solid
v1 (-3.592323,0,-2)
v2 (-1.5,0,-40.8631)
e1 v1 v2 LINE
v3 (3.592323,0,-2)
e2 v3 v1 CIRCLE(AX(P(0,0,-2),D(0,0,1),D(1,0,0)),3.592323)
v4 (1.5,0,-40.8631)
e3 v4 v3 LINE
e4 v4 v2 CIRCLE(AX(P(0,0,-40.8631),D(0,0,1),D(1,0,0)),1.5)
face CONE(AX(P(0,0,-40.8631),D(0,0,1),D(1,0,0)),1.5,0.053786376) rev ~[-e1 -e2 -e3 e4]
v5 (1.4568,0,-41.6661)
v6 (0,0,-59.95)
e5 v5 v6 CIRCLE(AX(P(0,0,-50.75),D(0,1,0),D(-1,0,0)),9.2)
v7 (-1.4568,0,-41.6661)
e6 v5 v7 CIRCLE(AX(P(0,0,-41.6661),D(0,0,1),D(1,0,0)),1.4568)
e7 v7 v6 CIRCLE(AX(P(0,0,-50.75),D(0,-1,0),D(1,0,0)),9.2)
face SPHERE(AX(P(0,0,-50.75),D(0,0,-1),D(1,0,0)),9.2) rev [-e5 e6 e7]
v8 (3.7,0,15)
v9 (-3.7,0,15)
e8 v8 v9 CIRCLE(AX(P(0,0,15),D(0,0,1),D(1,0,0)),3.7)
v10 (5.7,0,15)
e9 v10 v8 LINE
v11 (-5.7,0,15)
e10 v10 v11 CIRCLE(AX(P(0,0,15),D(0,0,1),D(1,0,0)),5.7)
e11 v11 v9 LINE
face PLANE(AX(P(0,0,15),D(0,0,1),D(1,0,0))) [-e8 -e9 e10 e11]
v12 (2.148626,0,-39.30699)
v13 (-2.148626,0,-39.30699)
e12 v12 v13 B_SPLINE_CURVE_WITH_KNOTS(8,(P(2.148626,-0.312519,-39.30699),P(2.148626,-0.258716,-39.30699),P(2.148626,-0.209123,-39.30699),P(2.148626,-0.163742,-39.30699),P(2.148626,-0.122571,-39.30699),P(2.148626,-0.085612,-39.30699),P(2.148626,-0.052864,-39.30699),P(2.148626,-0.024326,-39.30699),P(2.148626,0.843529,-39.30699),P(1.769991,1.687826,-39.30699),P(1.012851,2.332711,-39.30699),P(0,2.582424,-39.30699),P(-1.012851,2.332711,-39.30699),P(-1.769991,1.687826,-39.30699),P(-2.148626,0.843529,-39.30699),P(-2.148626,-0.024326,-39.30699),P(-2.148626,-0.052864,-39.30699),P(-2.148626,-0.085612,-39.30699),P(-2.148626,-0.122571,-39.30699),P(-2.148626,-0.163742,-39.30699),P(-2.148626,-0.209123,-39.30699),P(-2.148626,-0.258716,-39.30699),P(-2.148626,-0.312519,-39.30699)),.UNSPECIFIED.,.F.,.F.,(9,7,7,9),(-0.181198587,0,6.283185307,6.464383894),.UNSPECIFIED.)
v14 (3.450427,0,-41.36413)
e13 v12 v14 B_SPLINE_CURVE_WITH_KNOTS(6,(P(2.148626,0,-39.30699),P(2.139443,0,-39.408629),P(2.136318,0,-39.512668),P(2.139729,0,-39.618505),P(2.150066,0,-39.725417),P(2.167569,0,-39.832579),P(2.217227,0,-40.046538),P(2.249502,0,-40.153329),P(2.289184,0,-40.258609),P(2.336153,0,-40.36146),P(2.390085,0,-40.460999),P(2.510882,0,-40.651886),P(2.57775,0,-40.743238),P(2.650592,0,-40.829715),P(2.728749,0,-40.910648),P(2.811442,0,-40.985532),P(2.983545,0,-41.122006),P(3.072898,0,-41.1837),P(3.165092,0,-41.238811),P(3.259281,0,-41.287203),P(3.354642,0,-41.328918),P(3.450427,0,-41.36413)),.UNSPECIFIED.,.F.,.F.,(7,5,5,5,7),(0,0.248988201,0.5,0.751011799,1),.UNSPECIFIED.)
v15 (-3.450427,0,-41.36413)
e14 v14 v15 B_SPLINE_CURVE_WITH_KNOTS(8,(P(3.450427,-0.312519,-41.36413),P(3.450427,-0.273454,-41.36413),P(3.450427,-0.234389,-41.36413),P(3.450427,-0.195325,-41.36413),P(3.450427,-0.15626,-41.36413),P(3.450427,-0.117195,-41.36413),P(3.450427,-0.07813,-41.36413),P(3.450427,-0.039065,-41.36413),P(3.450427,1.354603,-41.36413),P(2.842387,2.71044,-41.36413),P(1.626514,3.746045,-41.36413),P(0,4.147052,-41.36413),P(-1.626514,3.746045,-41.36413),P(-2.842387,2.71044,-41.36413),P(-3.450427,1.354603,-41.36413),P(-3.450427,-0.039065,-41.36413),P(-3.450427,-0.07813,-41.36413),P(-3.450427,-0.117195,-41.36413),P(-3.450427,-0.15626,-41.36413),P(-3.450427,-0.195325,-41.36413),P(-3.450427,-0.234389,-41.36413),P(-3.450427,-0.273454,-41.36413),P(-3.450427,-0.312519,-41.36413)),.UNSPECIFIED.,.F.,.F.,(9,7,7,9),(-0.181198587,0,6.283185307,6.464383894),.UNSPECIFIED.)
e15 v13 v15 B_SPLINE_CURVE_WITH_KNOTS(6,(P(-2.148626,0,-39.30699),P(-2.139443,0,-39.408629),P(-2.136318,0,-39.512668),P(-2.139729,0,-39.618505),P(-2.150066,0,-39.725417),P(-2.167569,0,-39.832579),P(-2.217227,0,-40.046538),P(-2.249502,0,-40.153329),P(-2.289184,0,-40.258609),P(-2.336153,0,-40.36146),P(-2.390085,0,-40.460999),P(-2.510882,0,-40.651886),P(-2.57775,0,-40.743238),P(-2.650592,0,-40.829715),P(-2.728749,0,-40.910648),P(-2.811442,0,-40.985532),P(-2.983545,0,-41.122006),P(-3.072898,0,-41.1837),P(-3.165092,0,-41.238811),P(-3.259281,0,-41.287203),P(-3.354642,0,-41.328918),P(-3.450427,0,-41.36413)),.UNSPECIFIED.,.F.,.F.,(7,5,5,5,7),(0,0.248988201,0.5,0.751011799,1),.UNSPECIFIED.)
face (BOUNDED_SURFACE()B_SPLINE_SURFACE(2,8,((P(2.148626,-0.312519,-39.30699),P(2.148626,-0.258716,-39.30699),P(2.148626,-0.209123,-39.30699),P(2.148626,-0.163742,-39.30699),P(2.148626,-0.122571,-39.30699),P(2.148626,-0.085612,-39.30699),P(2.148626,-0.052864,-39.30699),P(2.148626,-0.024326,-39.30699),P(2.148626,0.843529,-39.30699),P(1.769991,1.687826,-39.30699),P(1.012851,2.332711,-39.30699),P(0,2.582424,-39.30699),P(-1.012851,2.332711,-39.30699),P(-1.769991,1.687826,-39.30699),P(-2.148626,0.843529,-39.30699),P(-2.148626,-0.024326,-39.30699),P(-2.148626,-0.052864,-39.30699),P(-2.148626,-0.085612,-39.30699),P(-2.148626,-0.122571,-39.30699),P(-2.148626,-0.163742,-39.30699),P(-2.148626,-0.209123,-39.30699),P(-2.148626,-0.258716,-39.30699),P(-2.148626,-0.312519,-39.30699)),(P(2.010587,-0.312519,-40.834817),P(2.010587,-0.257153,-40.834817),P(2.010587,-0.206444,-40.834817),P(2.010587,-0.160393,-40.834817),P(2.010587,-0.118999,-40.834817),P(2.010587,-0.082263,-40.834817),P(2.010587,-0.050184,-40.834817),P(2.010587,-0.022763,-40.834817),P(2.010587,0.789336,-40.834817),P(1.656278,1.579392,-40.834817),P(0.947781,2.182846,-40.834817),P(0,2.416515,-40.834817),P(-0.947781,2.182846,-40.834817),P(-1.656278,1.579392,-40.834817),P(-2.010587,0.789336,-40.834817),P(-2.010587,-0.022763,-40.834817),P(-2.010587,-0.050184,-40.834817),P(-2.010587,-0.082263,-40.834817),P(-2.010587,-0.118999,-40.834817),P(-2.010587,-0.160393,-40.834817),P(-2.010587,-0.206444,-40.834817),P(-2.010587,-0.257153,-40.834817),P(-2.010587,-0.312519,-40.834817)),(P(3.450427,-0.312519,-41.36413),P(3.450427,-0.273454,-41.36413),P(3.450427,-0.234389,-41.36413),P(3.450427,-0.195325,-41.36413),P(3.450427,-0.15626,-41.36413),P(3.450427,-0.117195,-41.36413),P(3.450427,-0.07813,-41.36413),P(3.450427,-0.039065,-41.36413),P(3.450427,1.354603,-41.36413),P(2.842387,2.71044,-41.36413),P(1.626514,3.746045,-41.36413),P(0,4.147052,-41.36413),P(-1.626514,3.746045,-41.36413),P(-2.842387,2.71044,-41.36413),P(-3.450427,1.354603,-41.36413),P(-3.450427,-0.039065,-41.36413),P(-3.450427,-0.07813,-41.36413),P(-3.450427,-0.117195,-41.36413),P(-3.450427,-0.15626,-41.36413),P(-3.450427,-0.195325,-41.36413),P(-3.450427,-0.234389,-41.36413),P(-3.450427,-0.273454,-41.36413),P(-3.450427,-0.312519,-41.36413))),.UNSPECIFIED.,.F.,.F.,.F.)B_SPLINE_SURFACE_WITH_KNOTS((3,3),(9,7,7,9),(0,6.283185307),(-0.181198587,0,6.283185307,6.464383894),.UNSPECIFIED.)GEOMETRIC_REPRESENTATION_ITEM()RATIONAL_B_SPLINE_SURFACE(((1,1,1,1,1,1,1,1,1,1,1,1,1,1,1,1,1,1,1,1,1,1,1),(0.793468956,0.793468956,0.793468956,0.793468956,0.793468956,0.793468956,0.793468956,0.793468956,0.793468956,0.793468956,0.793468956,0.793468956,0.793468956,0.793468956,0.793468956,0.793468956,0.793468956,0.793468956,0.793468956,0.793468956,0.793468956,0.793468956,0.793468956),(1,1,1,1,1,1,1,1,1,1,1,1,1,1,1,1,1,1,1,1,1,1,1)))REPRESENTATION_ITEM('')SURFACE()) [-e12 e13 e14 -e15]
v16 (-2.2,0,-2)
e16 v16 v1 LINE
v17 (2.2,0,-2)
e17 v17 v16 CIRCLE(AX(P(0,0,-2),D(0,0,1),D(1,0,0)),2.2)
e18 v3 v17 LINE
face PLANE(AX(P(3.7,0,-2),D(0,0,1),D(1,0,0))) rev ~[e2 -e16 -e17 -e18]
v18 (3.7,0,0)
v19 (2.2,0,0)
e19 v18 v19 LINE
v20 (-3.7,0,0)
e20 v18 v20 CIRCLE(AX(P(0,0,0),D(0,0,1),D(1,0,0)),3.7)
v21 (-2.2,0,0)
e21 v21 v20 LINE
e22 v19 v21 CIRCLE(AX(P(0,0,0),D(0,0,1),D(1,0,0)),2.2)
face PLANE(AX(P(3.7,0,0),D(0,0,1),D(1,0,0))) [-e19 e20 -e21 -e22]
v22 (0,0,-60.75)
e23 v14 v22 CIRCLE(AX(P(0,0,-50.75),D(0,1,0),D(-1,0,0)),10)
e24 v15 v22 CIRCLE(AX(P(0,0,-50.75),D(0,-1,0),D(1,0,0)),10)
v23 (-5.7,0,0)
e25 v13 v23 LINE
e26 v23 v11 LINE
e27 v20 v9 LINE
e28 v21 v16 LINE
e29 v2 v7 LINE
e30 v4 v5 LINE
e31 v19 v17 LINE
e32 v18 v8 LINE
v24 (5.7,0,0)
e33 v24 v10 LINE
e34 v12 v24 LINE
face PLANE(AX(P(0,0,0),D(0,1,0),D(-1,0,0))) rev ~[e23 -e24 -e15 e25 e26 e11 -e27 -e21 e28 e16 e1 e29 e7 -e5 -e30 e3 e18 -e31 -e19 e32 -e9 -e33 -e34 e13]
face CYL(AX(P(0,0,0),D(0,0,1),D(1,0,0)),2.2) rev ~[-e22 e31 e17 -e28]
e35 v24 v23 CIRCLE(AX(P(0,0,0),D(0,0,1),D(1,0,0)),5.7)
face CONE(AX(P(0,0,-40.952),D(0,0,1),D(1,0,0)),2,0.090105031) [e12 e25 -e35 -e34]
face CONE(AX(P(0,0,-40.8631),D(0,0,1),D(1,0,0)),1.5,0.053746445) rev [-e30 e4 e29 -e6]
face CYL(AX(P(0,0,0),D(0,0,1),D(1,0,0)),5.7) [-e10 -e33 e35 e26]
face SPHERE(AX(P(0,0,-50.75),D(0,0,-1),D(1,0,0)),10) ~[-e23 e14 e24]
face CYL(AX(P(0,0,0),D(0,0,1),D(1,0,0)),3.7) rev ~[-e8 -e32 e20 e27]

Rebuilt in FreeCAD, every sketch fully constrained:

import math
import FreeCAD as App
import Part
import Sketcher
from FreeCAD import Vector
Q = App.Units.Quantity


def edges_at(feature, points):
    """Names of the edges that pass closest to the given points."""
    edges = feature.Shape.Edges
    near = lambda p: min(range(len(edges)), key=lambda i: edges[i].distToShape(Part.Vertex(*p))[0])
    return sorted({f"Edge{near(p) + 1}" for p in points})

doc = App.newDocument("Part")
body = doc.addObject("PartDesign::Body", "Body")

# Sketch on XZ plane
sketch1 = body.newObject("Sketcher::SketchObject", "Sketch")
sketch1.AttachmentSupport = (doc.getObject("XZ_Plane"), [""])
sketch1.MapMode = "FlatFace"
sketch1.addGeometry(Part.LineSegment(Vector(3.7, 0, 0), Vector(3.7, 15, 0)), False)
sketch1.addGeometry(Part.LineSegment(Vector(3.7, 15, 0), Vector(5.7, 15, 0)), False)
sketch1.addGeometry(Part.LineSegment(Vector(5.7, 15, 0), Vector(5.7, 0, 0)), False)
sketch1.addGeometry(Part.LineSegment(Vector(5.7, 0, 0), Vector(2, -40.952, 0)), False)
sketch1.addGeometry(Part.ArcOfCircle(Part.Circle(Vector(0, -50.75, 0), Vector(0, 0, 1), 10), math.radians(-90), math.radians(78.463088)), False)
sketch1.addGeometry(Part.LineSegment(Vector(0, -60.75, 0), Vector(0, -59.95, 0)), False)
sketch1.addGeometry(Part.ArcOfCircle(Part.Circle(Vector(0, -50.75, 0), Vector(0, 0, 1), 9.2), math.radians(-90), math.radians(80.888962)), False)
sketch1.addGeometry(Part.LineSegment(Vector(1.4568, -41.6661, 0), Vector(1.5, -40.8631, 0)), False)
sketch1.addGeometry(Part.LineSegment(Vector(1.5, -40.8631, 0), Vector(3.7, 0, 0)), False)
sketch1.addConstraint(Sketcher.Constraint("Coincident", 0, 2, 1, 1))
sketch1.addConstraint(Sketcher.Constraint("Coincident", 1, 2, 2, 1))
sketch1.addConstraint(Sketcher.Constraint("Coincident", 2, 2, 3, 1))
sketch1.addConstraint(Sketcher.Constraint("Coincident", 3, 2, 4, 2))
sketch1.addConstraint(Sketcher.Constraint("Coincident", 4, 1, 5, 1))
sketch1.addConstraint(Sketcher.Constraint("Coincident", 5, 2, 6, 1))
sketch1.addConstraint(Sketcher.Constraint("Coincident", 6, 2, 7, 1))
sketch1.addConstraint(Sketcher.Constraint("Coincident", 7, 2, 8, 1))
sketch1.addConstraint(Sketcher.Constraint("Coincident", 8, 2, 0, 1))
sketch1.addConstraint(Sketcher.Constraint("Vertical", 0))
sketch1.addConstraint(Sketcher.Constraint("Horizontal", 1))
sketch1.addConstraint(Sketcher.Constraint("Vertical", 2))
sketch1.addConstraint(Sketcher.Constraint("Vertical", 5))
sketch1.addConstraint(Sketcher.Constraint("Coincident", 6, 3, 4, 3))
sketch1.addConstraint(Sketcher.Constraint("PointOnObject", 4, 3, -2))
sketch1.addConstraint(Sketcher.Constraint("PointOnObject", 2, 2, -1))
sketch1.addConstraint(Sketcher.Constraint("PointOnObject", 4, 1, -2))
sketch1.addConstraint(Sketcher.Constraint("PointOnObject", 8, 2, -1))
sketch1.addConstraint(Sketcher.Constraint("Radius", 4, Q("10 mm")))
sketch1.addConstraint(Sketcher.Constraint("Radius", 6, Q("9.2 mm")))
sketch1.addConstraint(Sketcher.Constraint("DistanceX", 1, 1, 1, 2, Q("2 mm")))
sketch1.addConstraint(Sketcher.Constraint("DistanceY", 0, 1, 0, 2, Q("15 mm")))
sketch1.addConstraint(Sketcher.Constraint("DistanceX", -1, 1, 3, 2, Q("2 mm")))
sketch1.addConstraint(Sketcher.Constraint("DistanceX", -1, 1, 0, 2, Q("3.7 mm")))
sketch1.addConstraint(Sketcher.Constraint("DistanceX", 7, 2, 3, 2, Q("0.5 mm")))
sketch1.addConstraint(Sketcher.Constraint("DistanceY", 4, 3, -1, 1, Q("50.75 mm")))
sketch1.addConstraint(Sketcher.Constraint("DistanceY", 6, 2, -1, 1, Q("41.666 mm")))
sketch1.addConstraint(Sketcher.Constraint("DistanceY", 7, 2, -1, 1, Q("40.863 mm")))
revolution = body.newObject("PartDesign::Revolution", "Revolution")
revolution.Profile = sketch1
revolution.ReferenceAxis = (sketch1, ["V_Axis"])
revolution.Angle = 180

# Sketch on XY plane
sketch2 = body.newObject("Sketcher::SketchObject", "Sketch001")
sketch2.AttachmentSupport = (doc.getObject("XY_Plane"), [""])
sketch2.MapMode = "FlatFace"
sketch2.addGeometry(Part.LineSegment(Vector(2.2, 0, 0), Vector(3.7, 0, 0)), False)
sketch2.addGeometry(Part.ArcOfCircle(Part.Circle(Vector(0, 0, 0), Vector(0, 0, 1), 3.7), math.radians(0), math.radians(180)), False)
sketch2.addGeometry(Part.LineSegment(Vector(-3.7, 0, 0), Vector(-2.2, 0, 0)), False)
sketch2.addGeometry(Part.ArcOfCircle(Part.Circle(Vector(0, 0, 0), Vector(0, 0, 1), 2.2), math.radians(0), math.radians(180)), False)
sketch2.addConstraint(Sketcher.Constraint("Coincident", 0, 2, 1, 1))
sketch2.addConstraint(Sketcher.Constraint("Coincident", 1, 2, 2, 1))
sketch2.addConstraint(Sketcher.Constraint("Coincident", 2, 2, 3, 2))
sketch2.addConstraint(Sketcher.Constraint("Coincident", 3, 1, 0, 1))
sketch2.addConstraint(Sketcher.Constraint("Horizontal", 0))
sketch2.addConstraint(Sketcher.Constraint("Horizontal", 2))
sketch2.addConstraint(Sketcher.Constraint("Coincident", 1, 3, -1, 1))
sketch2.addConstraint(Sketcher.Constraint("Coincident", 3, 3, -1, 1))
sketch2.addConstraint(Sketcher.Constraint("PointOnObject", 0, 2, -1))
sketch2.addConstraint(Sketcher.Constraint("PointOnObject", 1, 2, -1))
sketch2.addConstraint(Sketcher.Constraint("Radius", 1, Q("3.7 mm")))
sketch2.addConstraint(Sketcher.Constraint("Radius", 3, Q("2.2 mm")))
pad1 = body.newObject("PartDesign::Pad", "Pad")
pad1.Profile = sketch2
pad1.Length = 2
pad1.Reversed = True
doc.recompute()

fillet = body.newObject("PartDesign::Fillet", "Fillet")
fillet.Base = (pad1, edges_at(pad1, [(0, 2, -40.952)]))
fillet.Radius = 2

doc.recompute()
